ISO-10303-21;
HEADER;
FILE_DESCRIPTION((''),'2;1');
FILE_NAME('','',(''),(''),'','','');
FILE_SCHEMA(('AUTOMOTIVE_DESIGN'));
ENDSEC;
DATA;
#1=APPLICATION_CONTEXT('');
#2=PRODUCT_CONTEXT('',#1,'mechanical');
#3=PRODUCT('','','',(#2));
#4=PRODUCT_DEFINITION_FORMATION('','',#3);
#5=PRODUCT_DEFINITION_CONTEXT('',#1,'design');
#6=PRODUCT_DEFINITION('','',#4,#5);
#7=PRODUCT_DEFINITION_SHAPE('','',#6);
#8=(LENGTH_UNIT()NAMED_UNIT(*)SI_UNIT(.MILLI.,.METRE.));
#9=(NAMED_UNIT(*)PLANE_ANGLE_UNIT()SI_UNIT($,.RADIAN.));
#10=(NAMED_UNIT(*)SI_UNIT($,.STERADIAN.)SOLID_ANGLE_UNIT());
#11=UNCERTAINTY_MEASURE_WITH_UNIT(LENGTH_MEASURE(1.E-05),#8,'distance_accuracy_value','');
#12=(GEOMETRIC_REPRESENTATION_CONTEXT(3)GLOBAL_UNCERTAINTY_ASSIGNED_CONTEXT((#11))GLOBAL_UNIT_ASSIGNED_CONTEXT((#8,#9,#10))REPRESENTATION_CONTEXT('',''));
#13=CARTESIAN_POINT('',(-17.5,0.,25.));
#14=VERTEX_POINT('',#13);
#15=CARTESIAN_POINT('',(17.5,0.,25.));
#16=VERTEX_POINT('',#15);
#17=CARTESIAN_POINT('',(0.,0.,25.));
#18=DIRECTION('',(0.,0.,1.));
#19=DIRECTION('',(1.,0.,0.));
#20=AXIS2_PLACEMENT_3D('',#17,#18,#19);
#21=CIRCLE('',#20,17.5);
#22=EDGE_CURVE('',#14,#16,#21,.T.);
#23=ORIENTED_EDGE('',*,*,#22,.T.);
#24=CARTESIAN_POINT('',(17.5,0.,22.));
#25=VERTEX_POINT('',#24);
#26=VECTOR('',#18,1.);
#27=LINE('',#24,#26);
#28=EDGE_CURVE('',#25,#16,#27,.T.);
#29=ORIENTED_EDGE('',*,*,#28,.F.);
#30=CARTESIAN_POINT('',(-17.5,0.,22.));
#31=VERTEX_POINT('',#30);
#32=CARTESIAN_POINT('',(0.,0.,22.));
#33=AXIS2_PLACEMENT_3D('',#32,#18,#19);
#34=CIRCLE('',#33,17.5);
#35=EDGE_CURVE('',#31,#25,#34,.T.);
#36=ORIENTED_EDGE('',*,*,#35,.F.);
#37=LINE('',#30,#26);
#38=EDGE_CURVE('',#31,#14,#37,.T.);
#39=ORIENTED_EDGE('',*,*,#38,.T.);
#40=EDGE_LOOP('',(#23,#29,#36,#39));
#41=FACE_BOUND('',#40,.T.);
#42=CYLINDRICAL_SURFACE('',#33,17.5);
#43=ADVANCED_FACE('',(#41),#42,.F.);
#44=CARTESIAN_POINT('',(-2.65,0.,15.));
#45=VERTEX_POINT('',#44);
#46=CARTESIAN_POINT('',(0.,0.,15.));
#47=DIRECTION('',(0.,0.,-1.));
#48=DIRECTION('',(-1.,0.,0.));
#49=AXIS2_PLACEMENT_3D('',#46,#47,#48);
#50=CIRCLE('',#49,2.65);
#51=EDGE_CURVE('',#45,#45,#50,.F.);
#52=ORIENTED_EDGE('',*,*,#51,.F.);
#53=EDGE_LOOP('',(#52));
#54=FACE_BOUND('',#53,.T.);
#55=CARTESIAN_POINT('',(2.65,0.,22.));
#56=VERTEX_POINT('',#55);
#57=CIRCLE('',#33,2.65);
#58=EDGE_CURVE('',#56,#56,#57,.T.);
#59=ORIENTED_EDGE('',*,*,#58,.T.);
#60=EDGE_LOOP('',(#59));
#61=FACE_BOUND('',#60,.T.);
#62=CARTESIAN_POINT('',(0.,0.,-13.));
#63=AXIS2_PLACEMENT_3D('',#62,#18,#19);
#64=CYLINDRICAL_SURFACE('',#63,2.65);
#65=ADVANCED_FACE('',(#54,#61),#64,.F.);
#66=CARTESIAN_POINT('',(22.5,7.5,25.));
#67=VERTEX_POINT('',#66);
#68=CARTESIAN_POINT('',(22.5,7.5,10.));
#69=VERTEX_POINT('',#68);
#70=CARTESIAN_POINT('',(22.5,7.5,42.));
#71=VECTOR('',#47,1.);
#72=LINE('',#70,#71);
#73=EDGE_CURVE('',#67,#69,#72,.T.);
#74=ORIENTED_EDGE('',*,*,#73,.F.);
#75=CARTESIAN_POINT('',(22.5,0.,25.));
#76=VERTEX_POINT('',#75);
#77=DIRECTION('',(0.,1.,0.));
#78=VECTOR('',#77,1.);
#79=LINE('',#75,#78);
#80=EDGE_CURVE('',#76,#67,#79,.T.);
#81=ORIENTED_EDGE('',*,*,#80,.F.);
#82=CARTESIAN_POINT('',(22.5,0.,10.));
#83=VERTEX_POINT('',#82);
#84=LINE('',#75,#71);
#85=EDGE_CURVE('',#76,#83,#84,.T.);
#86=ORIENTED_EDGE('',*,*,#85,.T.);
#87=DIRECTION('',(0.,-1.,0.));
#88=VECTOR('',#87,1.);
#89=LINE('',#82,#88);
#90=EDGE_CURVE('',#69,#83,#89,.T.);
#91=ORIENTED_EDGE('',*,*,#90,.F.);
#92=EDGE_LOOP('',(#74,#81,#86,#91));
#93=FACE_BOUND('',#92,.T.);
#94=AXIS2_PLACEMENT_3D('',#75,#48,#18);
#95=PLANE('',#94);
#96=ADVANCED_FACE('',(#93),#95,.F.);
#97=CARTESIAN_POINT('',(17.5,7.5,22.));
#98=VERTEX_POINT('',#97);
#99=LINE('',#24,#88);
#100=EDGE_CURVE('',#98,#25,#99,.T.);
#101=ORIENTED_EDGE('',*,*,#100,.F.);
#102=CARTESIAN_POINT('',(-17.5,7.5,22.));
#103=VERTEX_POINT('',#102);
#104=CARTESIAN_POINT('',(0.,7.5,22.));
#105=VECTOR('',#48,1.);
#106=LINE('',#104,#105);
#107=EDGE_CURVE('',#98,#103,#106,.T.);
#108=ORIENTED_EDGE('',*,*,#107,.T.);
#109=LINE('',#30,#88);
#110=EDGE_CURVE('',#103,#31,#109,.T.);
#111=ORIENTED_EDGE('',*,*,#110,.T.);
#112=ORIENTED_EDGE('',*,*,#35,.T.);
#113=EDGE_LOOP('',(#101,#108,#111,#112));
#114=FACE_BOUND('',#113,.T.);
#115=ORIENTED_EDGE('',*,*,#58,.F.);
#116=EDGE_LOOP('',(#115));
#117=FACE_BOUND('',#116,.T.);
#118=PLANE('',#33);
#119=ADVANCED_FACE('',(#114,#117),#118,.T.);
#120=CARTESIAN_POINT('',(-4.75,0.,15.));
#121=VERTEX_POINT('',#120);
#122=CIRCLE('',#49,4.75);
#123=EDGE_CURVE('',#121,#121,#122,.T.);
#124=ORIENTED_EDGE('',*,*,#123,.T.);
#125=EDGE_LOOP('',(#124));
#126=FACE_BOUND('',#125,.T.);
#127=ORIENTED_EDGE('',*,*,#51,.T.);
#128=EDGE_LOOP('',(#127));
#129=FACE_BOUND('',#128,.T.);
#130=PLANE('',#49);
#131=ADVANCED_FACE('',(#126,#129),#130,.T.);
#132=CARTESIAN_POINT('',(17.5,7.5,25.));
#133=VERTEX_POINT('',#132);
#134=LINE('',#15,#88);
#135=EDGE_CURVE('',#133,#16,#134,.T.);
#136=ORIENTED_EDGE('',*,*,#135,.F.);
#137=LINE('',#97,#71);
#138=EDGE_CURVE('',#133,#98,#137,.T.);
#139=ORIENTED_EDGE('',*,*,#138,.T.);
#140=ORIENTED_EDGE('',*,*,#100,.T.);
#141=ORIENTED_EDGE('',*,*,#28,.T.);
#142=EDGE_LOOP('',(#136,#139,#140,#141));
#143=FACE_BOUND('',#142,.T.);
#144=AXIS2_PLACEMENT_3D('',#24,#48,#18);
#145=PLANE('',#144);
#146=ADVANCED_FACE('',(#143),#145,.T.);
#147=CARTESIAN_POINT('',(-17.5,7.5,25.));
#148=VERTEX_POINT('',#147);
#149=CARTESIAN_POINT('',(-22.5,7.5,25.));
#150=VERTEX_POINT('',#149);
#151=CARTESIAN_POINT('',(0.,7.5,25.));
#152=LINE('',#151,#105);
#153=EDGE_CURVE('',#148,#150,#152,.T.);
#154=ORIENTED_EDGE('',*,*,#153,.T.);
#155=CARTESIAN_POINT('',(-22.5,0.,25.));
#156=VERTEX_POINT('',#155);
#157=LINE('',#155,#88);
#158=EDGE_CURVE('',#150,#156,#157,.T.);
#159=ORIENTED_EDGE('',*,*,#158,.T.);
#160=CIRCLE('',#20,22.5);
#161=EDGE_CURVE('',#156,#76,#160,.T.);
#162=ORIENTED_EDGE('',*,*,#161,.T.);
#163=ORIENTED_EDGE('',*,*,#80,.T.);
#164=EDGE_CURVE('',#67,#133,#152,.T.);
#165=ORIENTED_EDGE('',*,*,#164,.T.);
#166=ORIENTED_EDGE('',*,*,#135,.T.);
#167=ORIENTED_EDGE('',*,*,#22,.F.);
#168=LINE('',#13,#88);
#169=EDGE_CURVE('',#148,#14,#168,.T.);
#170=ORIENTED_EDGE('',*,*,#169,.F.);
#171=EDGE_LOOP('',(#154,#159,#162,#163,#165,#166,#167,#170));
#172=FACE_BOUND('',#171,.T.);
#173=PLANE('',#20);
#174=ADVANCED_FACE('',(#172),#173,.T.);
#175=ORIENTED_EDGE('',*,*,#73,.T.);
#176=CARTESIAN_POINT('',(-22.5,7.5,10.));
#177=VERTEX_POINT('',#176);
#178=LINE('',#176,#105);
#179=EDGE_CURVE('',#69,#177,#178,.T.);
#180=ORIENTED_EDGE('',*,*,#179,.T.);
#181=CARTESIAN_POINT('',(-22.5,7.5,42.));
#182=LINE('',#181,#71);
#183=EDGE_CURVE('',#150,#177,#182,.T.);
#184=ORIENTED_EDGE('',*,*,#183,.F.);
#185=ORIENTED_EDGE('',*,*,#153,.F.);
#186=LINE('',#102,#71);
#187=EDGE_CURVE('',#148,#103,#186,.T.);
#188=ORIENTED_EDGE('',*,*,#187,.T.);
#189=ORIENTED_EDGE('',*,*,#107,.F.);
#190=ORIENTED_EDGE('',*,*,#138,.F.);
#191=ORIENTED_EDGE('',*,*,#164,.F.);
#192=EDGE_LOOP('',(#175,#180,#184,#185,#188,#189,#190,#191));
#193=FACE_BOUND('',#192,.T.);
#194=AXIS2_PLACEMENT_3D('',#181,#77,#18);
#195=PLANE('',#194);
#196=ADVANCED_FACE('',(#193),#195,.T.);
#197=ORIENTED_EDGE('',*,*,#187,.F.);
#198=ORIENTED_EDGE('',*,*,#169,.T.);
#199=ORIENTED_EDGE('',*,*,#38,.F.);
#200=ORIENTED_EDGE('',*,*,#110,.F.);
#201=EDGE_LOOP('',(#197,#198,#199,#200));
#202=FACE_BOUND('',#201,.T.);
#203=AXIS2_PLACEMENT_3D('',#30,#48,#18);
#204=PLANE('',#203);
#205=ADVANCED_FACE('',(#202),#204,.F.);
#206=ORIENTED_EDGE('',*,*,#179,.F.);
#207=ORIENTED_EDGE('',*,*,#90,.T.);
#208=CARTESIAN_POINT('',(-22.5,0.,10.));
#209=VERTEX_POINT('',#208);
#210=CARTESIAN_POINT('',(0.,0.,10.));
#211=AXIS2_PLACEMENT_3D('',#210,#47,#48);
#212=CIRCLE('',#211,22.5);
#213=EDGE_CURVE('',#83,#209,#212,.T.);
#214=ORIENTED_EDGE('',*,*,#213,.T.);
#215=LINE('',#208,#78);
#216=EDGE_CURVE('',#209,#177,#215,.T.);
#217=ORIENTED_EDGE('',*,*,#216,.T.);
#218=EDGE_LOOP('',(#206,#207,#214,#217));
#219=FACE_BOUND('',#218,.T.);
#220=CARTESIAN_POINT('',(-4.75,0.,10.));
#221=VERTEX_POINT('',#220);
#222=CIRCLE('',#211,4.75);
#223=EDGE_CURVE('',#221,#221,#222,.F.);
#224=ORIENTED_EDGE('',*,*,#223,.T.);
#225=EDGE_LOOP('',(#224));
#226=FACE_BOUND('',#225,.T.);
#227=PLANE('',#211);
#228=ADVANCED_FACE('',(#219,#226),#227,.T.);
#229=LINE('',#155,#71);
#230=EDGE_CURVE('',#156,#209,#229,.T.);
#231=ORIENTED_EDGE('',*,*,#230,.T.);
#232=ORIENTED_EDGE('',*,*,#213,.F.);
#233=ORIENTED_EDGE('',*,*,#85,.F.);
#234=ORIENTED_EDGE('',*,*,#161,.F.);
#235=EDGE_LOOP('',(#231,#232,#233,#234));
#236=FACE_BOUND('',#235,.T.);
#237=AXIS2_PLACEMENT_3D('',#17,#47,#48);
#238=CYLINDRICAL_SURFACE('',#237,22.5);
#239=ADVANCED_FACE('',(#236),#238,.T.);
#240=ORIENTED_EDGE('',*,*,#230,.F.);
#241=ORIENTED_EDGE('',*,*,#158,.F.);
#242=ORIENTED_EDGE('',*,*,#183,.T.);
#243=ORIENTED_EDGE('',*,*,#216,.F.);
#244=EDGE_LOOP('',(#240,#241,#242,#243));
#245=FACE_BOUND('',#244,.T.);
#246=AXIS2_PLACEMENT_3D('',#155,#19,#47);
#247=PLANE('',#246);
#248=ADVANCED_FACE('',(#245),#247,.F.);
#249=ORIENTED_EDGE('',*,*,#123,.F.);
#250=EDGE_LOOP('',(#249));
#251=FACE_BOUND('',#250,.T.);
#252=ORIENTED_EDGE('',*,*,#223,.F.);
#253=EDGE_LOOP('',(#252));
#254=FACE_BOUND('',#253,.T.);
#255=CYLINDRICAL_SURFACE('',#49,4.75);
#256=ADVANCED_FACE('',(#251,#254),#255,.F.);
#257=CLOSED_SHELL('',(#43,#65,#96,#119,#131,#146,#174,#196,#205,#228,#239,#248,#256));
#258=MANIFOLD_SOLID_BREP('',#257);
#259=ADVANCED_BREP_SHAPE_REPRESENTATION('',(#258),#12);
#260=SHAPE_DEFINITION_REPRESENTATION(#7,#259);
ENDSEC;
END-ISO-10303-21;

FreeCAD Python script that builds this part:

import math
import FreeCAD as App
import Part
import Sketcher
from FreeCAD import Vector

doc = App.newDocument("Part")
params = doc.addObject("Spreadsheet::Sheet", "Params")
for row, (alias, value) in enumerate([
    ("sketch1_radius", "22.5 mm"),
    ("sketch1_height", "22.5 mm"),
    ("pad1_length", "25 mm"),
    ("sketch2_radius", "17.5 mm"),
    ("sketch2_height", "22.5 mm"),
    ("pocket1_length", "3 mm"),
    ("sketch3_width", "45 mm"),
    ("sketch3_height", "15 mm"),
    ("sketch4_diameter", "5.3 mm"),
    ("pocket3_length", "35 mm"),
    ("sketch5_diameter", "9.5 mm"),
    ("pocket4_length", "15 mm"),
    ("pocket5_length", "10 mm"),
], start=1):
    params.set(f"A{row}", alias)
    params.set(f"B{row}", "=" + value)
    params.setAlias(f"B{row}", alias)

body = doc.addObject("PartDesign::Body", "Body")

# Sketch on XY plane
sketch1 = body.newObject("Sketcher::SketchObject", "Sketch")
sketch1.AttachmentSupport = (doc.getObject("XY_Plane"), [""])
sketch1.MapMode = "FlatFace"
sketch1.addGeometry([
    Part.LineSegment(Vector(-22, 22, 0), Vector(-22, 0, 0)),
    Part.ArcOfCircle(Part.Circle(Vector(0, 0, 0), Vector(0, 0, 1), 22), math.radians(180), math.radians(360)),
    Part.LineSegment(Vector(22, 0, 0), Vector(22, 22, 0)),
    Part.LineSegment(Vector(22, 22, 0), Vector(-22, 22, 0)),
], False)
sketch1.addConstraint([
    Sketcher.Constraint("Tangent", 0, 2, 1, 1),
    Sketcher.Constraint("Tangent", 1, 2, 2, 1),
    Sketcher.Constraint("Coincident", 2, 2, 3, 1),
    Sketcher.Constraint("Coincident", 3, 2, 0, 1),
    Sketcher.Constraint("Vertical", 0),
    Sketcher.Constraint("Vertical", 2),
    Sketcher.Constraint("Horizontal", 3),
    Sketcher.Constraint("Coincident", 1, 3, -1, 1),
    Sketcher.Constraint("Radius", 1, 22.5),
    Sketcher.Constraint("DistanceY", 0, 2, 0, 1, 22.5),
])
sketch1.setExpression("Constraints[8]", "Params.sketch1_radius")
sketch1.setExpression("Constraints[9]", "Params.sketch1_height")
pad1 = body.newObject("PartDesign::Pad", "Pad")
pad1.Profile = sketch1
pad1.setExpression("Length", "Params.pad1_length")

# Sketch on XY plane
sketch2 = body.newObject("Sketcher::SketchObject", "Sketch001")
sketch2.AttachmentSupport = (doc.getObject("XY_Plane"), [""])
sketch2.MapMode = "FlatFace"
sketch2.AttachmentOffset = App.Placement(Vector(0, 0, 25), App.Rotation())
sketch2.addGeometry([
    Part.LineSegment(Vector(-18, 22, 0), Vector(-18, 0, 0)),
    Part.ArcOfCircle(Part.Circle(Vector(0, 0, 0), Vector(0, 0, 1), 18), math.radians(180), math.radians(360)),
    Part.LineSegment(Vector(18, 0, 0), Vector(18, 22, 0)),
    Part.LineSegment(Vector(18, 22, 0), Vector(-18, 22, 0)),
], False)
sketch2.addConstraint([
    Sketcher.Constraint("Tangent", 0, 2, 1, 1),
    Sketcher.Constraint("Tangent", 1, 2, 2, 1),
    Sketcher.Constraint("Coincident", 2, 2, 3, 1),
    Sketcher.Constraint("Coincident", 3, 2, 0, 1),
    Sketcher.Constraint("Vertical", 0),
    Sketcher.Constraint("Vertical", 2),
    Sketcher.Constraint("Horizontal", 3),
    Sketcher.Constraint("Coincident", 1, 3, -1, 1),
    Sketcher.Constraint("Radius", 1, 17.5),
    Sketcher.Constraint("DistanceY", 0, 2, 0, 1, 22.5),
])
sketch2.setExpression("Constraints[8]", "Params.sketch2_radius")
sketch2.setExpression("Constraints[9]", "Params.sketch2_height")
pocket1 = body.newObject("PartDesign::Pocket", "Pocket")
pocket1.Profile = sketch2
pocket1.setExpression("Length", "Params.pocket1_length")

# Sketch on XY plane
sketch3 = body.newObject("Sketcher::SketchObject", "Sketch002")
sketch3.AttachmentSupport = (doc.getObject("XY_Plane"), [""])
sketch3.MapMode = "FlatFace"
sketch3.AttachmentOffset = App.Placement(Vector(0, 0, 22), App.Rotation())
sketch3.addGeometry([
    Part.LineSegment(Vector(-22, 22, 0), Vector(-22, 8, 0)),
    Part.LineSegment(Vector(-22, 8, 0), Vector(22, 8, 0)),
    Part.LineSegment(Vector(22, 8, 0), Vector(22, 22, 0)),
    Part.LineSegment(Vector(22, 22, 0), Vector(-22, 22, 0)),
], False)
sketch3.addConstraint([
    Sketcher.Constraint("Coincident", 0, 2, 1, 1),
    Sketcher.Constraint("Coincident", 1, 2, 2, 1),
    Sketcher.Constraint("Coincident", 2, 2, 3, 1),
    Sketcher.Constraint("Coincident", 3, 2, 0, 1),
    Sketcher.Constraint("Vertical", 0),
    Sketcher.Constraint("Horizontal", 1),
    Sketcher.Constraint("Vertical", 2),
    Sketcher.Constraint("Horizontal", 3),
    Sketcher.Constraint("DistanceX", 1, 1, 1, 2, 45.0),
    Sketcher.Constraint("DistanceY", 0, 2, 0, 1, 15.0),
    Sketcher.Constraint("DistanceX", 0, 2, -1, 1, 22.5),
    Sketcher.Constraint("DistanceY", -1, 1, 0, 2, 7.5),
])
sketch3.setExpression("Constraints[8]", "Params.sketch3_width")
sketch3.setExpression("Constraints[9]", "Params.sketch3_height")
pocket2 = body.newObject("PartDesign::Pocket", "Pocket001")
pocket2.Profile = sketch3
pocket2.Type = "ThroughAll"
pocket2.Midplane = True

# Sketch on XY plane
sketch4 = body.newObject("Sketcher::SketchObject", "Sketch003")
sketch4.AttachmentSupport = (doc.getObject("XY_Plane"), [""])
sketch4.MapMode = "FlatFace"
sketch4.AttachmentOffset = App.Placement(Vector(0, 0, 22), App.Rotation())
sketch4.addGeometry(Part.Circle(Vector(0, 0, 0), Vector(0, 0, 1), 2.6), False)
sketch4.addConstraint([
    Sketcher.Constraint("Coincident", 0, 3, -1, 1),
    Sketcher.Constraint("Diameter", 0, 5.3),
])
sketch4.setExpression("Constraints[1]", "Params.sketch4_diameter")
pocket3 = body.newObject("PartDesign::Pocket", "Pocket002")
pocket3.Profile = sketch4
pocket3.setExpression("Length", "Params.pocket3_length")

# Sketch on XY plane
sketch5 = body.newObject("Sketcher::SketchObject", "Sketch004")
sketch5.AttachmentSupport = (doc.getObject("XY_Plane"), [""])
sketch5.MapMode = "FlatFace"
sketch5.addGeometry(Part.Circle(Vector(0, 0, 0), Vector(0, 0, 1), 4.8), False)
sketch5.addConstraint([
    Sketcher.Constraint("Coincident", 0, 3, -1, 1),
    Sketcher.Constraint("Diameter", 0, 9.5),
])
sketch5.setExpression("Constraints[1]", "Params.sketch5_diameter")
pocket4 = body.newObject("PartDesign::Pocket", "Pocket003")
pocket4.Profile = sketch5
pocket4.setExpression("Length", "Params.pocket4_length")
pocket4.Reversed = True

# Sketch on XY plane
sketch6 = body.newObject("Sketcher::SketchObject", "Sketch005")
sketch6.AttachmentSupport = (doc.getObject("XY_Plane"), [""])
sketch6.MapMode = "FlatFace"
sketch6.addGeometry(Part.Circle(Vector(0, 0, 0), Vector(0, 0, 1), 25), False)
sketch6.addConstraint([
    Sketcher.Constraint("Coincident", 0, 3, -1, 1),
    Sketcher.Constraint("Diameter", 0, 49.783663),
])
pocket5 = body.newObject("PartDesign::Pocket", "Pocket004")
pocket5.Profile = sketch6
pocket5.setExpression("Length", "Params.pocket5_length")
pocket5.Reversed = True

doc.recompute()
